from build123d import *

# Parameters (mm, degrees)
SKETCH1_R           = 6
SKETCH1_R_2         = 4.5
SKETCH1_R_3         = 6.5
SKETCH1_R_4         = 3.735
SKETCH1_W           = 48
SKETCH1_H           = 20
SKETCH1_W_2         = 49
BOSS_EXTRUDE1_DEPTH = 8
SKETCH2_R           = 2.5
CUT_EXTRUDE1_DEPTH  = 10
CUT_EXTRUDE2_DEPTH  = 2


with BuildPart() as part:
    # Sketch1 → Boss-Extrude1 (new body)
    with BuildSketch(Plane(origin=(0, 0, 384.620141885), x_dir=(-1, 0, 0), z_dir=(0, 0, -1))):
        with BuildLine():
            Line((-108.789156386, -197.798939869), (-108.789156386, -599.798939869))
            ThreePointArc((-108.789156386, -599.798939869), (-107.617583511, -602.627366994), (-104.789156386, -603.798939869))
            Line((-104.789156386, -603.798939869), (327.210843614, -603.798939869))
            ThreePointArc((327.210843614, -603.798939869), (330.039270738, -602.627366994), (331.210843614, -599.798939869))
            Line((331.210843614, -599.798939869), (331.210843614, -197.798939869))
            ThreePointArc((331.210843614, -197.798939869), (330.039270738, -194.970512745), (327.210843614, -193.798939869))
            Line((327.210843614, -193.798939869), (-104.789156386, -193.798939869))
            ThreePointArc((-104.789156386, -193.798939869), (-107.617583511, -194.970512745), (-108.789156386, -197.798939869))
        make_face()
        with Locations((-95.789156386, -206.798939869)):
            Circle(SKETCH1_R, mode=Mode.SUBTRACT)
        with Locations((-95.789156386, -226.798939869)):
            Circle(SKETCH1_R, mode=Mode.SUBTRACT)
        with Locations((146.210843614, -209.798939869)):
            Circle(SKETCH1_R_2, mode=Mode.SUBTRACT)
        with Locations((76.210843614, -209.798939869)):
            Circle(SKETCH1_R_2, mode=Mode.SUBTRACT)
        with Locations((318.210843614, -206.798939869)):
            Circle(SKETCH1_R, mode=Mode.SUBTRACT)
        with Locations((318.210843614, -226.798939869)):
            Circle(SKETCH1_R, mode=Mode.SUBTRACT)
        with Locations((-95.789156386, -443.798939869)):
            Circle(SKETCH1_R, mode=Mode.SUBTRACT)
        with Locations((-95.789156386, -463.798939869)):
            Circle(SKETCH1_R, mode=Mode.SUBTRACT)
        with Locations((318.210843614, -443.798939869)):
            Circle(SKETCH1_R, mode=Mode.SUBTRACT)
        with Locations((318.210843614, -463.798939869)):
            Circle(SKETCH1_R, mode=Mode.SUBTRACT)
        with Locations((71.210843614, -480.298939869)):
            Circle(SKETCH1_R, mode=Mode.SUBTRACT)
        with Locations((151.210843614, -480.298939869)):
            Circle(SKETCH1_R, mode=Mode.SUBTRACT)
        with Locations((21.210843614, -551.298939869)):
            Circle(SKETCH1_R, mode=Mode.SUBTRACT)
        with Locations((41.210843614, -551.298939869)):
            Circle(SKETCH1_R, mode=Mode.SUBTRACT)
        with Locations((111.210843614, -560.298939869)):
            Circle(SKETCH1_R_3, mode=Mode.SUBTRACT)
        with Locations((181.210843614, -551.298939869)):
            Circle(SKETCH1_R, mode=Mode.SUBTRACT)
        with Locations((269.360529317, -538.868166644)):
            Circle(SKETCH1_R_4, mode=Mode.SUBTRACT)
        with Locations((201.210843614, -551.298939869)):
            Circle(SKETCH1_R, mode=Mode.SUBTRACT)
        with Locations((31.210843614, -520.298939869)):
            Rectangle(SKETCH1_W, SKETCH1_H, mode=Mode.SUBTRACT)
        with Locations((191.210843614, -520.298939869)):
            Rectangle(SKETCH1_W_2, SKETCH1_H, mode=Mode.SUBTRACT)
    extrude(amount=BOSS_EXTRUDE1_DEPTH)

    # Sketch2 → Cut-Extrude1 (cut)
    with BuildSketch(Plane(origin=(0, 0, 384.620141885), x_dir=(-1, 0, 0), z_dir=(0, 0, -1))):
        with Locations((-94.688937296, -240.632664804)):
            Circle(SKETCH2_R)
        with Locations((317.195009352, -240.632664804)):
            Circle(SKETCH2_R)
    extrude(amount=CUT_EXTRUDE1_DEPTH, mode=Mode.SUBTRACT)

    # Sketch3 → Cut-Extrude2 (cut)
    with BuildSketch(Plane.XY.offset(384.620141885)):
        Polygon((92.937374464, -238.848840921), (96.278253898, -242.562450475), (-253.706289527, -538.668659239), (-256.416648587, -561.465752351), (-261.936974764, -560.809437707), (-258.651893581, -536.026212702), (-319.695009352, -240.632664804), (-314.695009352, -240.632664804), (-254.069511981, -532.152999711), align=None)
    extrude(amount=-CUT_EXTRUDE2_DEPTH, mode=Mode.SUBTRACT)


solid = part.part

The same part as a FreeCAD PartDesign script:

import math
import FreeCAD as App
import Part
import Sketcher

V = App.Vector

doc = App.newDocument("Part")
body = doc.addObject("PartDesign::Body", "Body")

sketch1 = body.newObject("Sketcher::SketchObject", "Sketch")
sketch1.AttachmentSupport = (doc.getObject("XY_Plane"), [""])
sketch1.MapMode = "FlatFace"
sketch1.AttachmentOffset = App.Placement(V(0, 0, 384.620142), App.Rotation())
sketch1.addGeometry([
    Part.LineSegment(V(108.8, -197.8, 0), V(108.8, -599.8, 0)),
    Part.ArcOfCircle(Part.Circle(V(104.8, -599.8, 0), V(0, 0, 1), 4), math.radians(-90), math.radians(0)),
    Part.LineSegment(V(104.8, -603.8, 0), V(-327.2, -603.8, 0)),
    Part.ArcOfCircle(Part.Circle(V(-327.2, -599.8, 0), V(0, 0, 1), 4), math.radians(-180), math.radians(-90)),
    Part.LineSegment(V(-331.2, -599.8, 0), V(-331.2, -197.8, 0)),
    Part.ArcOfCircle(Part.Circle(V(-327.2, -197.8, 0), V(0, 0, 1), 4), math.radians(90), math.radians(180)),
    Part.LineSegment(V(-327.2, -193.8, 0), V(104.8, -193.8, 0)),
    Part.ArcOfCircle(Part.Circle(V(104.8, -197.8, 0), V(0, 0, 1), 4), math.radians(0), math.radians(90)),
    Part.Circle(V(-21.2, -551.3, 0), V(0, 0, 1), 6),
    Part.Circle(V(-41.2, -551.3, 0), V(0, 0, 1), 6),
    Part.LineSegment(V(-55.2, -530.3, 0), V(-7.2, -530.3, 0)),
    Part.LineSegment(V(-7.2, -530.3, 0), V(-7.2, -510.3, 0)),
    Part.LineSegment(V(-7.2, -510.3, 0), V(-55.2, -510.3, 0)),
    Part.LineSegment(V(-55.2, -510.3, 0), V(-55.2, -530.3, 0)),
    Part.Circle(V(-71.2, -480.3, 0), V(0, 0, 1), 6),
    Part.Circle(V(95.8, -463.8, 0), V(0, 0, 1), 6),
    Part.Circle(V(95.8, -443.8, 0), V(0, 0, 1), 6),
    Part.Circle(V(-111.2, -560.3, 0), V(0, 0, 1), 6.5),
    Part.Circle(V(-181.2, -551.3, 0), V(0, 0, 1), 6),
    Part.Circle(V(-201.2, -551.3, 0), V(0, 0, 1), 6),
    Part.Circle(V(-151.2, -480.3, 0), V(0, 0, 1), 6),
    Part.LineSegment(V(-215.7, -530.3, 0), V(-166.7, -530.3, 0)),
    Part.LineSegment(V(-166.7, -530.3, 0), V(-166.7, -510.3, 0)),
    Part.LineSegment(V(-166.7, -510.3, 0), V(-215.7, -510.3, 0)),
    Part.LineSegment(V(-215.7, -510.3, 0), V(-215.7, -530.3, 0)),
    Part.Circle(V(-269.4, -538.9, 0), V(0, 0, 1), 3.7),
    Part.Circle(V(-318.2, -463.8, 0), V(0, 0, 1), 6),
    Part.Circle(V(-318.2, -443.8, 0), V(0, 0, 1), 6),
    Part.Circle(V(95.8, -226.8, 0), V(0, 0, 1), 6),
    Part.Circle(V(95.8, -206.8, 0), V(0, 0, 1), 6),
    Part.Circle(V(-76.2, -209.8, 0), V(0, 0, 1), 4.5),
    Part.Circle(V(-146.2, -209.8, 0), V(0, 0, 1), 4.5),
    Part.Circle(V(-318.2, -226.8, 0), V(0, 0, 1), 6),
    Part.Circle(V(-318.2, -206.8, 0), V(0, 0, 1), 6),
], False)
sketch1.addConstraint([
    Sketcher.Constraint("Tangent", 0, 2, 1, 2),
    Sketcher.Constraint("Tangent", 1, 1, 2, 1),
    Sketcher.Constraint("Tangent", 2, 2, 3, 2),
    Sketcher.Constraint("Tangent", 3, 1, 4, 1),
    Sketcher.Constraint("Tangent", 4, 2, 5, 2),
    Sketcher.Constraint("Tangent", 5, 1, 6, 1),
    Sketcher.Constraint("Tangent", 6, 2, 7, 2),
    Sketcher.Constraint("Tangent", 7, 1, 0, 1),
    Sketcher.Constraint("Coincident", 10, 2, 11, 1),
    Sketcher.Constraint("Coincident", 11, 2, 12, 1),
    Sketcher.Constraint("Coincident", 12, 2, 13, 1),
    Sketcher.Constraint("Coincident", 13, 2, 10, 1),
    Sketcher.Constraint("Coincident", 21, 2, 22, 1),
    Sketcher.Constraint("Coincident", 22, 2, 23, 1),
    Sketcher.Constraint("Coincident", 23, 2, 24, 1),
    Sketcher.Constraint("Coincident", 24, 2, 21, 1),
    Sketcher.Constraint("Vertical", 0),
    Sketcher.Constraint("Horizontal", 2),
    Sketcher.Constraint("Vertical", 4),
    Sketcher.Constraint("Horizontal", 6),
    Sketcher.Constraint("Horizontal", 10),
    Sketcher.Constraint("Vertical", 11),
    Sketcher.Constraint("Horizontal", 12),
    Sketcher.Constraint("Vertical", 13),
    Sketcher.Constraint("Horizontal", 21),
    Sketcher.Constraint("Vertical", 22),
    Sketcher.Constraint("Horizontal", 23),
    Sketcher.Constraint("Vertical", 24),
    Sketcher.Constraint("Equal", 1, 3),
    Sketcher.Constraint("Equal", 3, 5),
    Sketcher.Constraint("Equal", 5, 7),
    Sketcher.Constraint("Equal", 8, 9),
    Sketcher.Constraint("Equal", 9, 14),
    Sketcher.Constraint("Equal", 14, 15),
    Sketcher.Constraint("Equal", 15, 16),
    Sketcher.Constraint("Equal", 16, 18),
    Sketcher.Constraint("Equal", 18, 19),
    Sketcher.Constraint("Equal", 19, 20),
    Sketcher.Constraint("Equal", 20, 26),
    Sketcher.Constraint("Equal", 26, 27),
    Sketcher.Constraint("Equal", 27, 28),
    Sketcher.Constraint("Equal", 28, 29),
    Sketcher.Constraint("Equal", 30, 31),
    Sketcher.Constraint("Equal", 29, 32),
    Sketcher.Constraint("Equal", 32, 33),
    Sketcher.Constraint("Horizontal", 8, 3, 9, 3),
    Sketcher.Constraint("Horizontal", 9, 3, 18, 3),
    Sketcher.Constraint("Horizontal", 18, 3, 19, 3),
    Sketcher.Constraint("Horizontal", 14, 3, 20, 3),
    Sketcher.Constraint("Horizontal", 15, 3, 26, 3),
    Sketcher.Constraint("Horizontal", 16, 3, 27, 3),
    Sketcher.Constraint("Horizontal", 30, 3, 31, 3),
    Sketcher.Constraint("Horizontal", 28, 3, 32, 3),
    Sketcher.Constraint("Horizontal", 29, 3, 33, 3),
    Sketcher.Constraint("Horizontal", 13, 2, 21, 2),
    Sketcher.Constraint("Horizontal", 12, 2, 22, 2),
    Sketcher.Constraint("Vertical", 15, 3, 16, 3),
    Sketcher.Constraint("Vertical", 26, 3, 27, 3),
    Sketcher.Constraint("Vertical", 16, 3, 28, 3),
    Sketcher.Constraint("Vertical", 28, 3, 29, 3),
    Sketcher.Constraint("Vertical", 27, 3, 32, 3),
    Sketcher.Constraint("Vertical", 32, 3, 33, 3),
    Sketcher.Constraint("Diameter", 8, 12.0),
    Sketcher.Constraint("Diameter", 17, 13.0),
    Sketcher.Constraint("Diameter", 30, 9.0),
    Sketcher.Constraint("Radius", 1, 4.0),
    Sketcher.Constraint("Diameter", 25, 7.47),
    Sketcher.Constraint("DistanceX", 2, 2, 2, 1, 432.0),
    Sketcher.Constraint("DistanceX", 10, 1, 10, 2, 48.0),
    Sketcher.Constraint("DistanceX", 21, 1, 21, 2, 49.0),
    Sketcher.Constraint("DistanceY", 0, 2, 0, 1, 402.0),
    Sketcher.Constraint("DistanceY", 11, 1, 11, 2, 20.0),
    Sketcher.Constraint("DistanceX", 8, 3, 1, 3, 126.0),
    Sketcher.Constraint("DistanceX", 9, 3, 8, 3, 20.0),
    Sketcher.Constraint("DistanceX", 14, 3, 9, 3, 30.0),
    Sketcher.Constraint("DistanceY", 9, 3, 14, 3, 71.0),
    Sketcher.Constraint("DistanceX", 15, 3, 1, 3, 9.0),
    Sketcher.Constraint("DistanceY", 1, 3, 15, 3, 136.0),
    Sketcher.Constraint("DistanceY", 15, 3, 16, 3, 20.0),
    Sketcher.Constraint("DistanceX", 17, 3, 9, 3, 70.0),
    Sketcher.Constraint("DistanceY", 17, 3, 9, 3, 9.0),
    Sketcher.Constraint("DistanceX", 18, 3, 17, 3, 70.0),
    Sketcher.Constraint("DistanceX", 19, 3, 18, 3, 20.0),
    Sketcher.Constraint("DistanceX", 18, 3, 20, 3, 30.0),
    Sketcher.Constraint("DistanceX", 3, 3, 26, 3, 9.0),
    Sketcher.Constraint("DistanceY", 28, 3, 7, 3, 29.0),
    Sketcher.Constraint("DistanceY", 29, 3, 7, 3, 9.0),
    Sketcher.Constraint("DistanceX", 30, 3, 29, 3, 172.0),
    Sketcher.Constraint("DistanceY", 30, 3, 29, 3, 3.0),
    Sketcher.Constraint("DistanceX", 31, 3, 30, 3, 70.0),
    Sketcher.Constraint("DistanceX", 8, 3, 10, 2, 14.0),
    Sketcher.Constraint("DistanceY", 8, 3, 10, 2, 21.0),
    Sketcher.Constraint("DistanceY", 1, 3, 8, 3, 48.5),
    Sketcher.Constraint("DistanceX", 18, 3, 21, 2, 14.5),
    Sketcher.Constraint("DistanceY", 1, 3, -1, 1, 599.79894),
    Sketcher.Constraint("DistanceX", 25, 3, -1, 1, 269.360529),
    Sketcher.Constraint("DistanceX", -1, 1, 1, 3, 104.789156),
    Sketcher.Constraint("DistanceY", 25, 3, -1, 1, 538.868167),
])
pad1 = body.newObject("PartDesign::Pad", "Pad")
pad1.Profile = sketch1
pad1.Length = 8
pad1.Reversed = True

sketch2 = body.newObject("Sketcher::SketchObject", "Sketch001")
sketch2.AttachmentSupport = (doc.getObject("XY_Plane"), [""])
sketch2.MapMode = "FlatFace"
sketch2.AttachmentOffset = App.Placement(V(0, 0, 384.620142), App.Rotation())
sketch2.addGeometry([
    Part.Circle(V(94.7, -240.6, 0), V(0, 0, 1), 2.5),
    Part.Circle(V(-317.2, -240.6, 0), V(0, 0, 1), 2.5),
], False)
sketch2.addConstraint([
    Sketcher.Constraint("Equal", 0, 1),
    Sketcher.Constraint("Horizontal", 0, 3, 1, 3),
    Sketcher.Constraint("Diameter", 0, 5.0),
    Sketcher.Constraint("DistanceX", 1, 3, -1, 1, 317.195009),
    Sketcher.Constraint("DistanceX", -1, 1, 0, 3, 94.688937),
    Sketcher.Constraint("DistanceY", 0, 3, -1, 1, 240.632665),
])
pocket1 = body.newObject("PartDesign::Pocket", "Pocket")
pocket1.Profile = sketch2
pocket1.Length = 10

sketch3 = body.newObject("Sketcher::SketchObject", "Sketch002")
sketch3.AttachmentSupport = (doc.getObject("XY_Plane"), [""])
sketch3.MapMode = "FlatFace"
sketch3.AttachmentOffset = App.Placement(V(0, 0, 384.620142), App.Rotation())
sketch3.addGeometry([
    Part.LineSegment(V(96.3, -242.6, 0), V(92.9, -238.8, 0)),
    Part.LineSegment(V(92.9, -238.8, 0), V(-254.1, -532.2, 0)),
    Part.LineSegment(V(-254.1, -532.2, 0), V(-314.7, -240.6, 0)),
    Part.LineSegment(V(-314.7, -240.6, 0), V(-319.7, -240.6, 0)),
    Part.LineSegment(V(-319.7, -240.6, 0), V(-258.7, -536, 0)),
    Part.LineSegment(V(-258.7, -536, 0), V(-261.9, -560.8, 0)),
    Part.LineSegment(V(-261.9, -560.8, 0), V(-256.4, -561.5, 0)),
    Part.LineSegment(V(-256.4, -561.5, 0), V(-253.7, -538.7, 0)),
    Part.LineSegment(V(-253.7, -538.7, 0), V(96.3, -242.6, 0)),
], False)
sketch3.addConstraint([
    Sketcher.Constraint("Coincident", 0, 2, 1, 1),
    Sketcher.Constraint("Coincident", 1, 2, 2, 1),
    Sketcher.Constraint("Coincident", 2, 2, 3, 1),
    Sketcher.Constraint("Coincident", 3, 2, 4, 1),
    Sketcher.Constraint("Coincident", 4, 2, 5, 1),
    Sketcher.Constraint("Coincident", 5, 2, 6, 1),
    Sketcher.Constraint("Coincident", 6, 2, 7, 1),
    Sketcher.Constraint("Coincident", 7, 2, 8, 1),
    Sketcher.Constraint("Coincident", 8, 2, 0, 1),
    Sketcher.Constraint("Horizontal", 3),
    Sketcher.Constraint("Perpendicular", 6, 7),
    Sketcher.Constraint("DistanceX", 3, 2, 3, 1, 5.0),
    Sketcher.Constraint("Distance", 5, 25.0),
    Sketcher.Constraint("DistanceY", 1, 2, -1, 1, 532.153),
    Sketcher.Constraint("Distance", 1, 454.357908),
    Sketcher.Constraint("Distance", 8, 458.44091),
    Sketcher.Constraint("DistanceY", 0, 2, -1, 1, 238.848841),
    Sketcher.Constraint("DistanceX", 1, 2, -1, 1, 254.069512),
    Sketcher.Constraint("DistanceX", 2, 2, -1, 1, 314.695009),
    Sketcher.Constraint("DistanceX", 6, 2, -1, 1, 256.416649),
    Sketcher.Constraint("DistanceX", 7, 2, -1, 1, 253.70629),
    Sketcher.Constraint("DistanceY", 7, 2, -1, 1, 538.668659),
    Sketcher.Constraint("DistanceY", 8, 2, -1, 1, 242.56245),
    Sketcher.Constraint("DistanceX", 4, 2, 1, 2, 4.582382),
    Sketcher.Constraint("DistanceY", 4, 2, 0, 2, 297.177372),
    Sketcher.Constraint("DistanceX", 5, 2, 4, 2, 3.285081),
    Sketcher.Constraint("Distance", 2, 297.757547),
])
pocket2 = body.newObject("PartDesign::Pocket", "Pocket001")
pocket2.Profile = sketch3
pocket2.Length = 2

doc.recompute()
